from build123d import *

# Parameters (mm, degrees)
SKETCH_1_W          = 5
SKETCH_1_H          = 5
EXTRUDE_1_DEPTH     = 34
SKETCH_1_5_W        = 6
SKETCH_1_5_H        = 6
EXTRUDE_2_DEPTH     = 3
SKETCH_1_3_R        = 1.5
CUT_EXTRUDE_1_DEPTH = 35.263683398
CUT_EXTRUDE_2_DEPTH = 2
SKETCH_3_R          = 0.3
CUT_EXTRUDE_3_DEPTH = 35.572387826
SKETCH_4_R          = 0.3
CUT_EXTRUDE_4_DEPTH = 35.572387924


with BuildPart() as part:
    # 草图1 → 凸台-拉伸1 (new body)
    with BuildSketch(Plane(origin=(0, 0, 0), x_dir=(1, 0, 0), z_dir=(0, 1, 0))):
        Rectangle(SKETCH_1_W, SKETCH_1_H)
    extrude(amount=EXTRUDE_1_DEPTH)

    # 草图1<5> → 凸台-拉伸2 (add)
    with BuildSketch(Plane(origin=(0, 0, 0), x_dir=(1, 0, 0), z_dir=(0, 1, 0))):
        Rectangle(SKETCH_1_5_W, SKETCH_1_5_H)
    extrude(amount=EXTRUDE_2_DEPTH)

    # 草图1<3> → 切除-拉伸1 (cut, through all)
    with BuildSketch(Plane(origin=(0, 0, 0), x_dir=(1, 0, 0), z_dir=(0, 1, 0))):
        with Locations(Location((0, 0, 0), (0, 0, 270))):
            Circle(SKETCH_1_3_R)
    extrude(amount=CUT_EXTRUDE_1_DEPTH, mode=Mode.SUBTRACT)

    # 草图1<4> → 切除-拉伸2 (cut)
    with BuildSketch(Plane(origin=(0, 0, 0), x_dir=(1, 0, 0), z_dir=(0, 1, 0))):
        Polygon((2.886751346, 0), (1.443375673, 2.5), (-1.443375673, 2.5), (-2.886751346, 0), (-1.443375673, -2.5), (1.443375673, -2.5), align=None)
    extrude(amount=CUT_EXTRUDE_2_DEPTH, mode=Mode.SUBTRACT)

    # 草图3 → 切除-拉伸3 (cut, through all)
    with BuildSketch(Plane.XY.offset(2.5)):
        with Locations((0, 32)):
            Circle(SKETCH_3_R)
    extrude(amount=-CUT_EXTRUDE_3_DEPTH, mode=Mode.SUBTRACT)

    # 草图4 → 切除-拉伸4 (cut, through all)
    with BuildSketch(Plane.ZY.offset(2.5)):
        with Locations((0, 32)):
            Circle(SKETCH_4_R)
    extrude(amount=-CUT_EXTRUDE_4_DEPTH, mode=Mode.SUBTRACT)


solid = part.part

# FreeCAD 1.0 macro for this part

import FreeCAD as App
import Part
import Sketcher
from FreeCAD import Vector
Q = App.Units.Quantity

doc = App.newDocument("Part")
params = doc.addObject("Spreadsheet::Sheet", "Params")
for row, (alias, value) in enumerate([
    ("sketch1_width", "5 mm"),
    ("pad1_length", "34 mm"),
    ("sketch2_width", "6 mm"),
    ("pad2_length", "3 mm"),
    ("sketch3_diameter", "3 mm"),
    ("pocket2_length", "2 mm"),
    ("sketch5_diameter", "0.6 mm"),
    ("sketch6_diameter", "0.6 mm"),
], start=1):
    params.set(f"A{row}", alias)
    params.set(f"B{row}", "=" + value)
    params.setAlias(f"B{row}", alias)

body = doc.addObject("PartDesign::Body", "Body")

# Sketch on XZ plane
sketch1 = body.newObject("Sketcher::SketchObject", "Sketch")
sketch1.AttachmentSupport = (doc.getObject("XZ_Plane"), [""])
sketch1.MapMode = "FlatFace"
sketch1.addGeometry([
    Part.LineSegment(Vector(-2, -2, 0), Vector(-2, 2, 0)),
    Part.LineSegment(Vector(-2, 2, 0), Vector(2, 2, 0)),
    Part.LineSegment(Vector(2, 2, 0), Vector(2, -2, 0)),
    Part.LineSegment(Vector(2, -2, 0), Vector(-2, -2, 0)),
], False)
sketch1.addConstraint([
    Sketcher.Constraint("Coincident", 0, 2, 1, 1),
    Sketcher.Constraint("Coincident", 1, 2, 2, 1),
    Sketcher.Constraint("Coincident", 2, 2, 3, 1),
    Sketcher.Constraint("Coincident", 3, 2, 0, 1),
    Sketcher.Constraint("Vertical", 0),
    Sketcher.Constraint("Horizontal", 1),
    Sketcher.Constraint("Vertical", 2),
    Sketcher.Constraint("Horizontal", 3),
    Sketcher.Constraint("Symmetric", 0, 2, 2, 2, -1, 1),
    Sketcher.Constraint("Equal", 3, 0),
    Sketcher.Constraint("DistanceX", 1, 1, 1, 2, 5.0),
])
sketch1.setExpression("Constraints[10]", "Params.sketch1_width")
pad1 = body.newObject("PartDesign::Pad", "Pad")
pad1.Profile = sketch1
pad1.setExpression("Length", "Params.pad1_length")
pad1.Reversed = True

# Sketch on XZ plane
sketch2 = body.newObject("Sketcher::SketchObject", "Sketch001")
sketch2.AttachmentSupport = (doc.getObject("XZ_Plane"), [""])
sketch2.MapMode = "FlatFace"
sketch2.addGeometry([
    Part.LineSegment(Vector(-3, -3, 0), Vector(-3, 3, 0)),
    Part.LineSegment(Vector(-3, 3, 0), Vector(3, 3, 0)),
    Part.LineSegment(Vector(3, 3, 0), Vector(3, -3, 0)),
    Part.LineSegment(Vector(3, -3, 0), Vector(-3, -3, 0)),
], False)
sketch2.addConstraint([
    Sketcher.Constraint("Coincident", 0, 2, 1, 1),
    Sketcher.Constraint("Coincident", 1, 2, 2, 1),
    Sketcher.Constraint("Coincident", 2, 2, 3, 1),
    Sketcher.Constraint("Coincident", 3, 2, 0, 1),
    Sketcher.Constraint("Vertical", 0),
    Sketcher.Constraint("Horizontal", 1),
    Sketcher.Constraint("Vertical", 2),
    Sketcher.Constraint("Horizontal", 3),
    Sketcher.Constraint("Symmetric", 0, 2, 2, 2, -1, 1),
    Sketcher.Constraint("Equal", 3, 0),
    Sketcher.Constraint("DistanceX", 1, 1, 1, 2, 6.0),
])
sketch2.setExpression("Constraints[10]", "Params.sketch2_width")
pad2 = body.newObject("PartDesign::Pad", "Pad001")
pad2.Profile = sketch2
pad2.setExpression("Length", "Params.pad2_length")
pad2.Reversed = True

# Sketch on XZ plane
sketch3 = body.newObject("Sketcher::SketchObject", "Sketch002")
sketch3.AttachmentSupport = (doc.getObject("XZ_Plane"), [""])
sketch3.MapMode = "FlatFace"
sketch3.addGeometry(Part.Circle(Vector(0, 0, 0), Vector(0, 0, 1), 1.5), False)
sketch3.addConstraint([
    Sketcher.Constraint("Coincident", 0, 3, -1, 1),
    Sketcher.Constraint("Diameter", 0, 3.0),
])
sketch3.setExpression("Constraints[1]", "Params.sketch3_diameter")
pocket1 = body.newObject("PartDesign::Pocket", "Pocket")
pocket1.Profile = sketch3
pocket1.Type = "ThroughAll"

# Sketch on XZ plane
sketch4 = body.newObject("Sketcher::SketchObject", "Sketch003")
sketch4.AttachmentSupport = (doc.getObject("XZ_Plane"), [""])
sketch4.MapMode = "FlatFace"
sketch4.addGeometry([
    Part.LineSegment(Vector(2.9, 0, 0), Vector(1.4, -2.5, 0)),  # 0
    Part.LineSegment(Vector(1.4, -2.5, 0), Vector(-1.4, -2.5, 0)),  # 1
    Part.LineSegment(Vector(-1.4, -2.5, 0), Vector(-2.9, 0, 0)),  # 2
    Part.LineSegment(Vector(-2.9, 0, 0), Vector(-1.4, 2.5, 0)),  # 3
    Part.LineSegment(Vector(-1.4, 2.5, 0), Vector(1.4, 2.5, 0)),  # 4
    Part.LineSegment(Vector(1.4, 2.5, 0), Vector(2.9, 0, 0)),  # 5
], False)
sketch4.addConstraint([
    Sketcher.Constraint("Coincident", 0, 2, 1, 1),
    Sketcher.Constraint("Coincident", 1, 2, 2, 1),
    Sketcher.Constraint("Coincident", 2, 2, 3, 1),
    Sketcher.Constraint("Coincident", 3, 2, 4, 1),
    Sketcher.Constraint("Coincident", 4, 2, 5, 1),
    Sketcher.Constraint("Coincident", 5, 2, 0, 1),
    Sketcher.Constraint("Horizontal", 1),
    Sketcher.Constraint("Horizontal", 4),
    Sketcher.Constraint("Symmetric", 0, 2, 3, 2, -1, 1),
    Sketcher.Constraint("Symmetric", 2, 2, 5, 2, -1, 1),
    Sketcher.Constraint("PointOnObject", 2, 2, -1),
    Sketcher.Constraint("Parallel", 2, 5),
    Sketcher.Constraint("Vertical", 1, 2, 3, 2),
    Sketcher.Constraint("Angle", 0, Q("-120 deg")),
    Sketcher.Constraint("DistanceY", 1, 2, 3, 2, 5.0),
    Sketcher.Constraint("DistanceX", 1, 2, 1, 1, 2.886751),
])
pocket2 = body.newObject("PartDesign::Pocket", "Pocket001")
pocket2.Profile = sketch4
pocket2.setExpression("Length", "Params.pocket2_length")

# Sketch on XY plane
sketch5 = body.newObject("Sketcher::SketchObject", "Sketch004")
sketch5.AttachmentSupport = (doc.getObject("XY_Plane"), [""])
sketch5.MapMode = "FlatFace"
sketch5.AttachmentOffset = App.Placement(Vector(0, 0, 2.5), App.Rotation())
sketch5.addGeometry(Part.Circle(Vector(0, 32, 0), Vector(0, 0, 1), 0.3), False)
sketch5.addConstraint([
    Sketcher.Constraint("PointOnObject", 0, 3, -2),
    Sketcher.Constraint("Diameter", 0, 0.6),
    Sketcher.Constraint("DistanceY", -1, 1, 0, 3, 32.0),
])
sketch5.setExpression("Constraints[1]", "Params.sketch5_diameter")
pocket3 = body.newObject("PartDesign::Pocket", "Pocket002")
pocket3.Profile = sketch5
pocket3.Type = "ThroughAll"

# Sketch on YZ plane
sketch6 = body.newObject("Sketcher::SketchObject", "Sketch005")
sketch6.AttachmentSupport = (doc.getObject("YZ_Plane"), [""])
sketch6.MapMode = "FlatFace"
sketch6.AttachmentOffset = App.Placement(Vector(0, 0, -2.5), App.Rotation())
sketch6.addGeometry(Part.Circle(Vector(32, 0, 0), Vector(0, 0, 1), 0.3), False)
sketch6.addConstraint([
    Sketcher.Constraint("PointOnObject", 0, 3, -1),
    Sketcher.Constraint("Diameter", 0, 0.6),
    Sketcher.Constraint("DistanceX", -1, 1, 0, 3, 32.0),
])
sketch6.setExpression("Constraints[1]", "Params.sketch6_diameter")
pocket4 = body.newObject("PartDesign::Pocket", "Pocket003")
pocket4.Profile = sketch6
pocket4.Type = "ThroughAll"
pocket4.Reversed = True

doc.recompute()
